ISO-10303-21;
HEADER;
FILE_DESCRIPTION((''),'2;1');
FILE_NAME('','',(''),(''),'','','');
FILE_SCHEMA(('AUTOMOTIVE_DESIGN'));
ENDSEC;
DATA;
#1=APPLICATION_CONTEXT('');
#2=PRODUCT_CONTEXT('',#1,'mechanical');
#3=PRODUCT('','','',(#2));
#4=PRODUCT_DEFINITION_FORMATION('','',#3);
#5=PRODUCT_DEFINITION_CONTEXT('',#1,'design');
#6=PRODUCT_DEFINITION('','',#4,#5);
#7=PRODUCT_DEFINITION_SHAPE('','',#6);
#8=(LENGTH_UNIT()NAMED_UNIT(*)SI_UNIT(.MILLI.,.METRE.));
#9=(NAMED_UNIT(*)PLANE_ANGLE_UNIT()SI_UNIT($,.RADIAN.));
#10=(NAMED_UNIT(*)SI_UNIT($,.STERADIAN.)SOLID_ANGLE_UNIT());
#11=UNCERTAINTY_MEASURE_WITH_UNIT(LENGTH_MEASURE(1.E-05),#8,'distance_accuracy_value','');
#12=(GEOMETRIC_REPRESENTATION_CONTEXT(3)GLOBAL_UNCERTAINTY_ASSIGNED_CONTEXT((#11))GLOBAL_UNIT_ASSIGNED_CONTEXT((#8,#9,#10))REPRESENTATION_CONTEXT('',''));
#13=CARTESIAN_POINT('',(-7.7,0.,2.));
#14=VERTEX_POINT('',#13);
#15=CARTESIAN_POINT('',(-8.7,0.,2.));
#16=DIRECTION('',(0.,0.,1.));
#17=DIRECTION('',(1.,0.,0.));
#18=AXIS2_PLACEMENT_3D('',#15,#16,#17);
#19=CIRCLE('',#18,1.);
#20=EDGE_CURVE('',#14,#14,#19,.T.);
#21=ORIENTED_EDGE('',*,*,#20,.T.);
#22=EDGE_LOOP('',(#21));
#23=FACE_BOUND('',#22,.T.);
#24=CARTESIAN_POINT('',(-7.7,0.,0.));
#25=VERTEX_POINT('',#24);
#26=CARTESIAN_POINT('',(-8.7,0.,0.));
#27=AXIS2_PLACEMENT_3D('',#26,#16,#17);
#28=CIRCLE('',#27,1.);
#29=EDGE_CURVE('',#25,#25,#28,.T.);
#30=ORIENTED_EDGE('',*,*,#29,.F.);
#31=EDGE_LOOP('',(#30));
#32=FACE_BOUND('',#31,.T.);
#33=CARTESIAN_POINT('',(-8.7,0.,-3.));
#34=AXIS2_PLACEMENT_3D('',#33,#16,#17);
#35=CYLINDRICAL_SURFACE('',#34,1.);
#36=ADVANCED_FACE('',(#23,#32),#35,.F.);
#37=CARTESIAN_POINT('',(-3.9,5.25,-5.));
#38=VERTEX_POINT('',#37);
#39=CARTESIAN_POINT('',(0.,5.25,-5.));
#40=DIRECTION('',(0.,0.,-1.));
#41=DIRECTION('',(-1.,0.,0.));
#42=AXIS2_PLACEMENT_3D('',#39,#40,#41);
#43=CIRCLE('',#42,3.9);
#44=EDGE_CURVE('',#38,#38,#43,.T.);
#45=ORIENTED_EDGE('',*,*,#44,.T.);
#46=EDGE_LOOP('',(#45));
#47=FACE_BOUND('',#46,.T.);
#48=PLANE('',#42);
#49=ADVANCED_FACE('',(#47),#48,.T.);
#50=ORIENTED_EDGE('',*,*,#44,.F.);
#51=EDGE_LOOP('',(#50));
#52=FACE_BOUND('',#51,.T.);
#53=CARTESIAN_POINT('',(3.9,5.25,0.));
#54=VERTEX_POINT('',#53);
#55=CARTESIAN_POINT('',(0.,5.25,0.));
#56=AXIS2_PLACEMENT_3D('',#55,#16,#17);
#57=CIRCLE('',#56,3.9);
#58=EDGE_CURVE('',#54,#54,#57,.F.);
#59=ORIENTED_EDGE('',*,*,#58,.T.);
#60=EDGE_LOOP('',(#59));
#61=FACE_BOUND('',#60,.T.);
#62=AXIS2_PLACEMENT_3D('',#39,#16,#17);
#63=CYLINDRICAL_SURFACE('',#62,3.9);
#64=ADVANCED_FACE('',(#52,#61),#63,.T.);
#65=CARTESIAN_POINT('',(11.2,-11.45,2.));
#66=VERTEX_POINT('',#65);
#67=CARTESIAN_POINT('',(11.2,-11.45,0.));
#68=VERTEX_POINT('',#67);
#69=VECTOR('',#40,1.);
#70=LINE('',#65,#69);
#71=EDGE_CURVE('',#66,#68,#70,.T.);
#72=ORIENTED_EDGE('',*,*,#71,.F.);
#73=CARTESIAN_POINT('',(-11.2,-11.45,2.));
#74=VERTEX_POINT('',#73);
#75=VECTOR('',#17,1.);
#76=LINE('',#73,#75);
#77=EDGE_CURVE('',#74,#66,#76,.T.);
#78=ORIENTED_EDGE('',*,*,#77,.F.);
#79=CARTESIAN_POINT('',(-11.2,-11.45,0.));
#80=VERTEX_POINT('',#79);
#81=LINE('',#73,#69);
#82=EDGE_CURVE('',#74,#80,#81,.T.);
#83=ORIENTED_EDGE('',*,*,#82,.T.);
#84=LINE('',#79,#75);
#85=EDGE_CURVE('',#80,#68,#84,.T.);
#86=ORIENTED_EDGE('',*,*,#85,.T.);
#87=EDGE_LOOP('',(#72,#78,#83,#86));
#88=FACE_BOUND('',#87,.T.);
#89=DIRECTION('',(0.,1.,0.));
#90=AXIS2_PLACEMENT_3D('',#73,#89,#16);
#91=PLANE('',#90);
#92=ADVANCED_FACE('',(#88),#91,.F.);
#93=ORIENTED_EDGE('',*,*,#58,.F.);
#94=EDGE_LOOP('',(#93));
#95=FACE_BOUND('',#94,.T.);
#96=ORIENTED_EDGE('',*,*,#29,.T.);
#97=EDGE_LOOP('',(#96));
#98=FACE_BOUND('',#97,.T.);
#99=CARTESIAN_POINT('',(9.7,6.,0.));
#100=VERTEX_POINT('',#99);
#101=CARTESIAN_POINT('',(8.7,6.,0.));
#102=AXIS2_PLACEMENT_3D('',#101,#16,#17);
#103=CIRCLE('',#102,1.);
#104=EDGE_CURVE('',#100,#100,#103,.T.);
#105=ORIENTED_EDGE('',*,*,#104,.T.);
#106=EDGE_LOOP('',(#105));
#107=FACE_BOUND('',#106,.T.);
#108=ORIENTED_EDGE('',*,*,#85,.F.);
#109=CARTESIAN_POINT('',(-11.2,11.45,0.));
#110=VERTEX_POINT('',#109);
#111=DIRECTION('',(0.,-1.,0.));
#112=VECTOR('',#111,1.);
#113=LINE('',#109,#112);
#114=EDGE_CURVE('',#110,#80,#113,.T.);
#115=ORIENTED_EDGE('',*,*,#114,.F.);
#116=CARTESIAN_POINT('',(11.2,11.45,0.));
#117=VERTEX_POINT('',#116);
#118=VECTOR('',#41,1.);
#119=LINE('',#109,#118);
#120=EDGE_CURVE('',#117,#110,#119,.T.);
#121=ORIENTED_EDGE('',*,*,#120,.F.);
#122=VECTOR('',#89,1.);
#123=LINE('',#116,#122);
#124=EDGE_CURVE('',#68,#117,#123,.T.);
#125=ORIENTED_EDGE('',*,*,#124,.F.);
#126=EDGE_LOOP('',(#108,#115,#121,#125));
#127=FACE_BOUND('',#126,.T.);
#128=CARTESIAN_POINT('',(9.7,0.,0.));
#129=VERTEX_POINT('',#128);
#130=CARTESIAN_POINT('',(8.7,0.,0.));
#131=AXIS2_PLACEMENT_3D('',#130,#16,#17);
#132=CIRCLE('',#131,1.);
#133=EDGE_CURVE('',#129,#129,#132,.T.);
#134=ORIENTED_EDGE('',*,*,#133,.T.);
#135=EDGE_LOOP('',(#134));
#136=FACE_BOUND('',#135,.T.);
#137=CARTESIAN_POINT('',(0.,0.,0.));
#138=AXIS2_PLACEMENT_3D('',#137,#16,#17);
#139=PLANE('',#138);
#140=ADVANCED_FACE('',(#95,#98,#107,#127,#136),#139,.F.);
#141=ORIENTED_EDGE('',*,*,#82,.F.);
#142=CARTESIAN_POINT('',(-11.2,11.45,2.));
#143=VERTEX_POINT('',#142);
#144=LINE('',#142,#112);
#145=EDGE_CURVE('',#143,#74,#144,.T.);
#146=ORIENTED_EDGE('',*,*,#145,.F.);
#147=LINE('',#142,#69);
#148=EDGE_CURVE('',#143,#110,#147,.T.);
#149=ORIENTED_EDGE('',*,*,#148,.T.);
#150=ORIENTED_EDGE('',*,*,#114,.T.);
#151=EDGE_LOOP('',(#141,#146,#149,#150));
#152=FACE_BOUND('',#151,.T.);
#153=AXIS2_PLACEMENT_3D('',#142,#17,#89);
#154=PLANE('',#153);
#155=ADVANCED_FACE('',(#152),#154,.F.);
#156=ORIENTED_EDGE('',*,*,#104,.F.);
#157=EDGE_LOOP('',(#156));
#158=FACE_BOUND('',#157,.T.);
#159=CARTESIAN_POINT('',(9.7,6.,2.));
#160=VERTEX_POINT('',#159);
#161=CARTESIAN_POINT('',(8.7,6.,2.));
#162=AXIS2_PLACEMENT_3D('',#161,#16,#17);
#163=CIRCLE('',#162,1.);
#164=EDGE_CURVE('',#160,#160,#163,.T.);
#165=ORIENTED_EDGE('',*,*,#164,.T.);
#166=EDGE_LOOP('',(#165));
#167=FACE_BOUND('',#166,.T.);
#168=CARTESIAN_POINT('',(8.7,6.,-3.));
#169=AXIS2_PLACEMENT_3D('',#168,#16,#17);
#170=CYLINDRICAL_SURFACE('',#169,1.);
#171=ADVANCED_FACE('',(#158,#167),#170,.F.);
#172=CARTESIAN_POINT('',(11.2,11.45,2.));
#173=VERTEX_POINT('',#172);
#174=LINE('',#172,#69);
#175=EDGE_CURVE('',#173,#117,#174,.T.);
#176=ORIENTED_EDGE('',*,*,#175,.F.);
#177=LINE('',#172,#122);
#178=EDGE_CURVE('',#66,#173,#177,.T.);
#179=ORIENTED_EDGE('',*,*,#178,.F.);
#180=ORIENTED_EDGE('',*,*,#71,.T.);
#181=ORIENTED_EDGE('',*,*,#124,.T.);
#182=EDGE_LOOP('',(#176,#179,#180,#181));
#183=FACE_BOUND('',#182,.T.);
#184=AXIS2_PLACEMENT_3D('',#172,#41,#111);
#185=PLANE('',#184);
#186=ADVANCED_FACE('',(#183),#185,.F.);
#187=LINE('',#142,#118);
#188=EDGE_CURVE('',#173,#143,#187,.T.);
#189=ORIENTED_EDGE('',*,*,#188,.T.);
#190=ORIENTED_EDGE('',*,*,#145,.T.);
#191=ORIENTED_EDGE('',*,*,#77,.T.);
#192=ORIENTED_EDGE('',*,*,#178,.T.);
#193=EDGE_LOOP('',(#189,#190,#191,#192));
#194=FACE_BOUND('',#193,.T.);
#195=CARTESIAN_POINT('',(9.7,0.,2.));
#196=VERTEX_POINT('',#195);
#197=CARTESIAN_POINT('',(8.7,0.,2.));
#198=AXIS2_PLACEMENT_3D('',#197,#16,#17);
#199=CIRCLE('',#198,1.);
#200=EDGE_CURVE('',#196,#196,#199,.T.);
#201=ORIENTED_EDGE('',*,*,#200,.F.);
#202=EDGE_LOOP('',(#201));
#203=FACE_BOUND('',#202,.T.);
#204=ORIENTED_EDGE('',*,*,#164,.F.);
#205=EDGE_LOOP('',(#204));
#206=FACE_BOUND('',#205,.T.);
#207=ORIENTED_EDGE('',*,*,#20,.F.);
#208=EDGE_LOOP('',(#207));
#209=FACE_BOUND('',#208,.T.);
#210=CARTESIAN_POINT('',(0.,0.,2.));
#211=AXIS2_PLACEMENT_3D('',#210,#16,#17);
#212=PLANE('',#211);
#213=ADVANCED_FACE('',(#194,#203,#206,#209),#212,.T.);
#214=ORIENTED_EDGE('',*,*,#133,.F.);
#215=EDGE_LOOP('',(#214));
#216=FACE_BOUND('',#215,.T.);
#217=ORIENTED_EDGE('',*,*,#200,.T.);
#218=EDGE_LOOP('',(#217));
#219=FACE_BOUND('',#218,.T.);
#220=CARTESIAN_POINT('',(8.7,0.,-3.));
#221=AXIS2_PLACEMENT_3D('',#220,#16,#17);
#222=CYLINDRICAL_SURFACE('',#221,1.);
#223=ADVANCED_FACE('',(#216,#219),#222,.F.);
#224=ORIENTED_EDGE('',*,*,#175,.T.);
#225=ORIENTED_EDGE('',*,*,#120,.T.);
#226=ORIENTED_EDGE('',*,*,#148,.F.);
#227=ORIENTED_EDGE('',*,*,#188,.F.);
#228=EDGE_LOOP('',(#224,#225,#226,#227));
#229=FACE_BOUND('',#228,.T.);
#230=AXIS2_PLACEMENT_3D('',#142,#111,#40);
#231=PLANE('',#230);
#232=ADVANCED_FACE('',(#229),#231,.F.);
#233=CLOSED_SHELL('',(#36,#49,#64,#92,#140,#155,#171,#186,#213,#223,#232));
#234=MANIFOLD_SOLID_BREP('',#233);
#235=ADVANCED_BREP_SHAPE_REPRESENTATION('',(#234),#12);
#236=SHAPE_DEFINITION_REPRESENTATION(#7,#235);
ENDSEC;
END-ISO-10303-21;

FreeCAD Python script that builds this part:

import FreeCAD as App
import Part
import Sketcher

V = App.Vector


def add_polygon(sketch, points):
    """Adds a closed chain of lines whose ends are joined by coincident constraints."""
    first, n = sketch.GeometryCount, len(points)
    for a, b in zip(points, points[1:] + points[:1]):
        sketch.addGeometry(Part.LineSegment(App.Vector(*a, 0), App.Vector(*b, 0)), False)
    for i in range(n):
        sketch.addConstraint(Sketcher.Constraint("Coincident", first + i, 2, first + (i + 1) % n, 1))

doc = App.newDocument("Part")
body = doc.addObject("PartDesign::Body", "Body")

# Sketch on XY plane
sketch1 = doc.addObject("Sketcher::SketchObject", "Sketch")
body.addObject(sketch1)
sketch1.AttachmentSupport = (doc.XY_Plane, [""])
sketch1.MapMode = "FlatFace"
add_polygon(sketch1, [(-11.2, 11.45), (-11.2, -11.45), (11.2, -11.45), (11.2, 11.45)])  # lines 0-3
sketch1.addConstraint(Sketcher.Constraint("Vertical", 0))
sketch1.addConstraint(Sketcher.Constraint("Horizontal", 1))
sketch1.addConstraint(Sketcher.Constraint("Vertical", 2))
sketch1.addConstraint(Sketcher.Constraint("Horizontal", 3))
sketch1.addConstraint(Sketcher.Constraint("Symmetric", 0, 2, 2, 2, -1, 1))
sketch1.addConstraint(Sketcher.Constraint("DistanceX", 1, 1, 1, 2, 22.4))
sketch1.addConstraint(Sketcher.Constraint("DistanceY", 0, 2, 0, 1, 22.9))
pad1 = doc.addObject("PartDesign::Pad", "Pad")
body.addObject(pad1)
pad1.Profile = sketch1
pad1.Length = 2

# Sketch on XY plane
sketch2 = doc.addObject("Sketcher::SketchObject", "Sketch001")
body.addObject(sketch2)
sketch2.AttachmentSupport = (doc.XY_Plane, [""])
sketch2.MapMode = "FlatFace"
sketch2.AttachmentOffset = App.Placement(V(0, 0, 2), App.Rotation())
sketch2.addGeometry(Part.Circle(V(-8.7, 0, 0), V(0, 0, 1), 1), False)
sketch2.addGeometry(Part.Circle(V(8.7, 0, 0), V(0, 0, 1), 1), False)
sketch2.addGeometry(Part.Circle(V(8.7, 6, 0), V(0, 0, 1), 1), False)
sketch2.addConstraint(Sketcher.Constraint("Equal", 0, 1))
sketch2.addConstraint(Sketcher.Constraint("Equal", 1, 2))
sketch2.addConstraint(Sketcher.Constraint("Symmetric", 0, 3, 1, 3, -1, 1))
sketch2.addConstraint(Sketcher.Constraint("PointOnObject", 0, 3, -1))
sketch2.addConstraint(Sketcher.Constraint("Vertical", 1, 3, 2, 3))
sketch2.addConstraint(Sketcher.Constraint("Diameter", 0, 2.0))
sketch2.addConstraint(Sketcher.Constraint("DistanceY", -1, 1, 2, 3, 6.0))
sketch2.addConstraint(Sketcher.Constraint("DistanceX", 0, 3, -1, 1, 8.7))
pocket1 = doc.addObject("PartDesign::Pocket", "Pocket")
body.addObject(pocket1)
pocket1.Profile = sketch2
pocket1.Length = 5

# Sketch on XY plane
sketch3 = doc.addObject("Sketcher::SketchObject", "Sketch002")
body.addObject(sketch3)
sketch3.AttachmentSupport = (doc.XY_Plane, [""])
sketch3.MapMode = "FlatFace"
sketch3.addGeometry(Part.Circle(V(0, 5.25, 0), V(0, 0, 1), 3.9), False)
sketch3.addConstraint(Sketcher.Constraint("PointOnObject", 0, 3, -2))
sketch3.addConstraint(Sketcher.Constraint("Diameter", 0, 7.8))
sketch3.addConstraint(Sketcher.Constraint("DistanceY", -1, 1, 0, 3, 5.25))
pad2 = doc.addObject("PartDesign::Pad", "Pad001")
body.addObject(pad2)
pad2.Profile = sketch3
pad2.Length = 5
pad2.Reversed = True

doc.recompute()
